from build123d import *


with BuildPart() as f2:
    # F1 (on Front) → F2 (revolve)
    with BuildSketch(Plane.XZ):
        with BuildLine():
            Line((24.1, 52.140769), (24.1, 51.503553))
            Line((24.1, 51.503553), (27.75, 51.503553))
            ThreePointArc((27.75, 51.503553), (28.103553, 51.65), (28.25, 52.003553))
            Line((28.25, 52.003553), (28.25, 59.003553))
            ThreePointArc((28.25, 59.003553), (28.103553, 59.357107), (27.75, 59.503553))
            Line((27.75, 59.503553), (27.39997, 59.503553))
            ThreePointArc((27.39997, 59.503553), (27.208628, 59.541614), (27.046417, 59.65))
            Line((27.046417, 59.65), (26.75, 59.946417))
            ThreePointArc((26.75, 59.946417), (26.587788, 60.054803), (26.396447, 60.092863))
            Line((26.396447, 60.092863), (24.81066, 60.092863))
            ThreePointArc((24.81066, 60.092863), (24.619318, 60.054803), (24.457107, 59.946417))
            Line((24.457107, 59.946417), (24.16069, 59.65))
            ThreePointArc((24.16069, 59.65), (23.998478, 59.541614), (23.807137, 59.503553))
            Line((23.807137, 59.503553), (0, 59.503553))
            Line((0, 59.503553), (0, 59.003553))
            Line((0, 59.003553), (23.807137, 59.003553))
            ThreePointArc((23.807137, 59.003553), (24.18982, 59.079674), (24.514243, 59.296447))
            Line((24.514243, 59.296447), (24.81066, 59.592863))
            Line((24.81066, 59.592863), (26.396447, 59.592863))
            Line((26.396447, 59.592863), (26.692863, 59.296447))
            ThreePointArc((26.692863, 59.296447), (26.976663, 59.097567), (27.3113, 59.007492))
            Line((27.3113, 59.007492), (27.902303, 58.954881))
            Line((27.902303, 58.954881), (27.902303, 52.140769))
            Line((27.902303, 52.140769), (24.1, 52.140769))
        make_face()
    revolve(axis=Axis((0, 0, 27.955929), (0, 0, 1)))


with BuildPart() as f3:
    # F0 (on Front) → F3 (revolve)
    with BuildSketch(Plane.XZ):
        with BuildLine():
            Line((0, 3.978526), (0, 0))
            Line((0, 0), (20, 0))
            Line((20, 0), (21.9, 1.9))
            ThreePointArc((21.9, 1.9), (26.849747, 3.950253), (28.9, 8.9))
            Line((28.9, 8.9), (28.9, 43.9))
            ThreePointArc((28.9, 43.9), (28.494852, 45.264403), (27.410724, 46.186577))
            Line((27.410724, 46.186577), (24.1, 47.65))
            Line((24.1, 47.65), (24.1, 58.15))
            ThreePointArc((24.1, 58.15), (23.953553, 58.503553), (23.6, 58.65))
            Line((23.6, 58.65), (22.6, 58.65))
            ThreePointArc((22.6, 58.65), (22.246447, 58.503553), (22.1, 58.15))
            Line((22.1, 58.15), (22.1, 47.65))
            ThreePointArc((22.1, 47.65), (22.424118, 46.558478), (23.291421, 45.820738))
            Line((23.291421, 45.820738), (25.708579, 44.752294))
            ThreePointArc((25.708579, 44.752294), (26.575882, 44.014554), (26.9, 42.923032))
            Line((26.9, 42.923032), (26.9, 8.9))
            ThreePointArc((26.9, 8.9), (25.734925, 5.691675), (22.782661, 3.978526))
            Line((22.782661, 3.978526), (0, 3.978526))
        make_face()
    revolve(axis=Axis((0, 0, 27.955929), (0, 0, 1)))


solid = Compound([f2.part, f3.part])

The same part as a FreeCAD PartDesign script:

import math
import FreeCAD as App
import Part
import Sketcher
from FreeCAD import Vector
Q = App.Units.Quantity

doc = App.newDocument("Part")
params = doc.addObject("Spreadsheet::Sheet", "Params")
for row, (alias, value) in enumerate([
    ("sketch1_radius", "1.000001 mm"),
    ("sketch1_height", "7 mm"),
    ("sketch1_width", "3.65 mm"),
    ("revolution_angle", "360 deg"),
    ("sketch2_radius", "7.000002 mm"),
    ("sketch2_radius2", "1.999999 mm"),
    ("sketch2_radius3", "5 mm"),
    ("sketch2_radius4", "0.500001 mm"),
    ("sketch2_width", "20 mm"),
    ("revolution2_angle", "360 deg"),
], start=1):
    params.set(f"A{row}", alias)
    params.set(f"B{row}", "=" + value)
    params.setAlias(f"B{row}", alias)

body = doc.addObject("PartDesign::Body", "Body")

# Sketch on XZ plane
sketch1 = body.newObject("Sketcher::SketchObject", "Sketch")
sketch1.AttachmentSupport = (doc.getObject("XZ_Plane"), [""])
sketch1.MapMode = "FlatFace"
sketch1.addGeometry([
    Part.LineSegment(Vector(24.1, 52.14, 0), Vector(24.1, 51.5, 0)),  # 0
    Part.LineSegment(Vector(24.1, 51.5, 0), Vector(27.75, 51.5, 0)),  # 1
    Part.ArcOfCircle(Part.Circle(Vector(27.75, 52, 0), Vector(0, 0, 1), 0.5), math.radians(-90), math.radians(0)),  # 2
    Part.LineSegment(Vector(28.25, 52, 0), Vector(28.25, 59, 0)),  # 3
    Part.ArcOfCircle(Part.Circle(Vector(27.75, 59, 0), Vector(0, 0, 1), 0.5), math.radians(0), math.radians(90)),  # 4
    Part.LineSegment(Vector(27.75, 59.5, 0), Vector(27.4, 59.5, 0)),  # 5
    Part.ArcOfCircle(Part.Circle(Vector(27.4, 60, 0), Vector(0, 0, 1), 0.5), math.radians(-135), math.radians(-90)),  # 6
    Part.LineSegment(Vector(27.05, 59.65, 0), Vector(26.75, 59.95, 0)),  # 7
    Part.ArcOfCircle(Part.Circle(Vector(26.4, 59.59, 0), Vector(0, 0, 1), 0.5), math.radians(45), math.radians(90)),  # 8
    Part.LineSegment(Vector(26.4, 60.09, 0), Vector(24.81, 60.09, 0)),  # 9
    Part.ArcOfCircle(Part.Circle(Vector(24.81, 59.59, 0), Vector(0, 0, 1), 0.5), math.radians(90), math.radians(135)),  # 10
    Part.LineSegment(Vector(24.46, 59.95, 0), Vector(24.16, 59.65, 0)),  # 11
    Part.ArcOfCircle(Part.Circle(Vector(23.81, 60, 0), Vector(0, 0, 1), 0.5), math.radians(-90), math.radians(-45)),  # 12
    Part.LineSegment(Vector(23.81, 59.5, 0), Vector(0, 59.5, 0)),  # 13
    Part.LineSegment(Vector(0, 59.5, 0), Vector(0, 59, 0)),  # 14
    Part.LineSegment(Vector(0, 59, 0), Vector(23.81, 59, 0)),  # 15
    Part.ArcOfCircle(Part.Circle(Vector(23.81, 60, 0), Vector(0, 0, 1), 1), math.radians(-90), math.radians(-45)),  # 16
    Part.LineSegment(Vector(24.51, 59.3, 0), Vector(24.81, 59.59, 0)),  # 17
    Part.LineSegment(Vector(24.81, 59.59, 0), Vector(26.4, 59.59, 0)),  # 18
    Part.LineSegment(Vector(26.4, 59.59, 0), Vector(26.69, 59.3, 0)),  # 19
    Part.ArcOfCircle(Part.Circle(Vector(27.4, 60, 0), Vector(0, 0, 1), 1), math.radians(-135), math.radians(-95)),  # 20
    Part.LineSegment(Vector(27.31, 59.01, 0), Vector(27.9, 58.95, 0)),  # 21
    Part.LineSegment(Vector(27.9, 58.95, 0), Vector(27.9, 52.14, 0)),  # 22
    Part.LineSegment(Vector(27.9, 52.14, 0), Vector(24.1, 52.14, 0)),  # 23
], False)
sketch1.addConstraint([
    Sketcher.Constraint("Coincident", 0, 2, 1, 1),
    Sketcher.Constraint("Coincident", 1, 2, 2, 1),
    Sketcher.Constraint("Coincident", 2, 2, 3, 1),
    Sketcher.Constraint("Tangent", 3, 2, 4, 1),
    Sketcher.Constraint("Tangent", 4, 2, 5, 1),
    Sketcher.Constraint("Coincident", 5, 2, 6, 2),
    Sketcher.Constraint("Tangent", 6, 1, 7, 1),
    Sketcher.Constraint("Coincident", 7, 2, 8, 1),
    Sketcher.Constraint("Tangent", 8, 2, 9, 1),
    Sketcher.Constraint("Coincident", 9, 2, 10, 1),
    Sketcher.Constraint("Tangent", 10, 2, 11, 1),
    Sketcher.Constraint("Coincident", 11, 2, 12, 2),
    Sketcher.Constraint("Coincident", 12, 1, 13, 1),
    Sketcher.Constraint("Coincident", 13, 2, 14, 1),
    Sketcher.Constraint("Coincident", 14, 2, 15, 1),
    Sketcher.Constraint("Tangent", 15, 2, 16, 1),
    Sketcher.Constraint("Coincident", 16, 2, 17, 1),
    Sketcher.Constraint("Coincident", 17, 2, 18, 1),
    Sketcher.Constraint("Coincident", 18, 2, 19, 1),
    Sketcher.Constraint("Tangent", 19, 2, 20, 1),
    Sketcher.Constraint("Tangent", 20, 2, 21, 1),
    Sketcher.Constraint("Coincident", 21, 2, 22, 1),
    Sketcher.Constraint("Coincident", 22, 2, 23, 1),
    Sketcher.Constraint("Coincident", 23, 2, 0, 1),
    Sketcher.Constraint("Vertical", 0),
    Sketcher.Constraint("Horizontal", 1),
    Sketcher.Constraint("Vertical", 3),
    Sketcher.Constraint("Horizontal", 5),
    Sketcher.Constraint("Horizontal", 9),
    Sketcher.Constraint("Horizontal", 13),
    Sketcher.Constraint("Vertical", 14),
    Sketcher.Constraint("Horizontal", 15),
    Sketcher.Constraint("Horizontal", 18),
    Sketcher.Constraint("Vertical", 22),
    Sketcher.Constraint("Horizontal", 23),
    Sketcher.Constraint("Coincident", 16, 3, 12, 3),
    Sketcher.Constraint("Coincident", 20, 3, 6, 3),
    Sketcher.Constraint("Coincident", 17, 2, 10, 3),
    Sketcher.Constraint("Coincident", 18, 2, 8, 3),
    Sketcher.Constraint("Equal", 2, 4),
    Sketcher.Constraint("Equal", 6, 8),
    Sketcher.Constraint("Equal", 16, 20),
    Sketcher.Constraint("PointOnObject", 13, 2, -2),
    Sketcher.Constraint("Perpendicular", 7, 11),
    Sketcher.Constraint("Parallel", 11, 17),
    Sketcher.Constraint("Perpendicular", 17, 19),
    Sketcher.Constraint("Horizontal", 16, 3, 20, 3),
    Sketcher.Constraint("Horizontal", 7, 2, 10, 2),
    Sketcher.Constraint("Horizontal", 6, 1, 11, 2),
    Sketcher.Constraint("Horizontal", 3, 2, 14, 2),
    Sketcher.Constraint("Horizontal", 16, 2, 19, 2),
    Sketcher.Constraint("Vertical", 4, 3, 1, 2),
    Sketcher.Constraint("Vertical", 20, 3, 5, 2),
    Sketcher.Constraint("Vertical", 10, 3, 9, 2),
    Sketcher.Constraint("Vertical", 16, 3, 12, 1),
    Sketcher.Constraint("Equal", 7, 11),
    Sketcher.Constraint("Radius", 16, Q("1.000001 mm")),
    Sketcher.Constraint("DistanceY", 3, 1, 3, 2, Q("7 mm")),
    Sketcher.Constraint("DistanceY", 2, 3, 4, 3, Q("6.999999 mm")),
    Sketcher.Constraint("DistanceX", 1, 1, 1, 2, Q("3.65 mm")),
    Sketcher.Constraint("DistanceX", -1, 1, 0, 2, Q("24.1 mm")),
    Sketcher.Constraint("DistanceY", -1, 1, 6, 1, Q("59.65 mm")),
    Sketcher.Constraint("DistanceX", -1, 1, 7, 2, Q("26.75 mm")),
    Sketcher.Constraint("DistanceX", 5, 2, 5, 1, Q("0.35003 mm")),
    Sketcher.Constraint("DistanceX", -1, 1, 20, 2, Q("27.3113 mm")),
    Sketcher.Constraint("Distance", 21, Q("0.59334 mm")),
    Sketcher.Constraint("DistanceX", 9, 2, 9, 1, Q("1.585787 mm")),
    Sketcher.Constraint("DistanceY", 0, 2, 0, 1, Q("0.637216 mm")),
])
sketch1.setExpression("Constraints[56]", "Params.sketch1_radius")
sketch1.setExpression("Constraints[57]", "Params.sketch1_height")
sketch1.setExpression("Constraints[59]", "Params.sketch1_width")
revolution = body.newObject("PartDesign::Revolution", "Revolution")
revolution.Profile = sketch1
revolution.ReferenceAxis = (sketch1, ["V_Axis"])
revolution.setExpression("Angle", "Params.revolution_angle")
body2 = doc.addObject("PartDesign::Body", "Body001")

# Sketch on XZ plane
sketch2 = body2.newObject("Sketcher::SketchObject", "Sketch001")
sketch2.AttachmentSupport = (doc.getObject("XZ_Plane001"), [""])
sketch2.MapMode = "FlatFace"
sketch2.addGeometry([
    Part.LineSegment(Vector(0, 4, 0), Vector(0, 0, 0)),  # 0
    Part.LineSegment(Vector(0, 0, 0), Vector(20, 0, 0)),  # 1
    Part.LineSegment(Vector(20, 0, 0), Vector(21.9, 1.9, 0)),  # 2
    Part.ArcOfCircle(Part.Circle(Vector(21.9, 8.9, 0), Vector(0, 0, 1), 7), math.radians(-90), math.radians(0)),  # 3
    Part.LineSegment(Vector(28.9, 8.9, 0), Vector(28.9, 43.9, 0)),  # 4
    Part.ArcOfCircle(Part.Circle(Vector(26.4, 43.9, 0), Vector(0, 0, 1), 2.5), math.radians(0), math.radians(66)),  # 5
    Part.LineSegment(Vector(27.4, 46.2, 0), Vector(24.1, 47.6, 0)),  # 6
    Part.LineSegment(Vector(24.1, 47.6, 0), Vector(24.1, 58.1, 0)),  # 7
    Part.ArcOfCircle(Part.Circle(Vector(23.6, 58.1, 0), Vector(0, 0, 1), 0.5), math.radians(0), math.radians(90)),  # 8
    Part.LineSegment(Vector(23.6, 58.6, 0), Vector(22.6, 58.6, 0)),  # 9
    Part.ArcOfCircle(Part.Circle(Vector(22.6, 58.1, 0), Vector(0, 0, 1), 0.5), math.radians(90), math.radians(180)),  # 10
    Part.LineSegment(Vector(22.1, 58.1, 0), Vector(22.1, 47.6, 0)),  # 11
    Part.ArcOfCircle(Part.Circle(Vector(24.1, 47.6, 0), Vector(0, 0, 1), 2), math.radians(180), math.radians(246)),  # 12
    Part.LineSegment(Vector(23.3, 45.8, 0), Vector(25.7, 44.8, 0)),  # 13
    Part.ArcOfCircle(Part.Circle(Vector(24.9, 42.9, 0), Vector(0, 0, 1), 2), math.radians(0), math.radians(66)),  # 14
    Part.LineSegment(Vector(26.9, 42.9, 0), Vector(26.9, 8.9, 0)),  # 15
    Part.ArcOfCircle(Part.Circle(Vector(21.9, 8.9, 0), Vector(0, 0, 1), 5), math.radians(-80), math.radians(0)),  # 16
    Part.LineSegment(Vector(22.8, 4, 0), Vector(0, 4, 0)),  # 17
], False)
sketch2.addConstraint([
    Sketcher.Constraint("Coincident", 0, 2, 1, 1),
    Sketcher.Constraint("Coincident", 1, 2, 2, 1),
    Sketcher.Constraint("Coincident", 2, 2, 3, 1),
    Sketcher.Constraint("Tangent", 3, 2, 4, 1),
    Sketcher.Constraint("Tangent", 4, 2, 5, 1),
    Sketcher.Constraint("Tangent", 5, 2, 6, 1),
    Sketcher.Constraint("Coincident", 6, 2, 7, 1),
    Sketcher.Constraint("Coincident", 7, 2, 8, 1),
    Sketcher.Constraint("Coincident", 8, 2, 9, 1),
    Sketcher.Constraint("Coincident", 9, 2, 10, 1),
    Sketcher.Constraint("Coincident", 10, 2, 11, 1),
    Sketcher.Constraint("Tangent", 11, 2, 12, 1),
    Sketcher.Constraint("Tangent", 12, 2, 13, 1),
    Sketcher.Constraint("Tangent", 13, 2, 14, 2),
    Sketcher.Constraint("Tangent", 14, 1, 15, 1),
    Sketcher.Constraint("Tangent", 15, 2, 16, 2),
    Sketcher.Constraint("Coincident", 16, 1, 17, 1),
    Sketcher.Constraint("Coincident", 17, 2, 0, 1),
    Sketcher.Constraint("Vertical", 0),
    Sketcher.Constraint("Horizontal", 1),
    Sketcher.Constraint("Vertical", 4),
    Sketcher.Constraint("Vertical", 7),
    Sketcher.Constraint("Horizontal", 9),
    Sketcher.Constraint("Vertical", 11),
    Sketcher.Constraint("Vertical", 15),
    Sketcher.Constraint("Horizontal", 17),
    Sketcher.Constraint("Coincident", 0, 2, -1, 1),
    Sketcher.Constraint("Coincident", 16, 3, 3, 3),
    Sketcher.Constraint("Coincident", 6, 2, 12, 3),
    Sketcher.Constraint("Equal", 8, 10),
    Sketcher.Constraint("Equal", 12, 14),
    Sketcher.Constraint("Parallel", 6, 13),
    Sketcher.Constraint("Horizontal", 10, 3, 7, 2),
    Sketcher.Constraint("Horizontal", 7, 2, 10, 2),
    Sketcher.Constraint("Vertical", 16, 3, 2, 2),
    Sketcher.Constraint("Vertical", 10, 3, 9, 2),
    Sketcher.Constraint("Radius", 3, Q("7.000002 mm")),
    Sketcher.Constraint("Radius", 12, Q("1.999999 mm")),
    Sketcher.Constraint("Radius", 16, Q("5 mm")),
    Sketcher.Constraint("Radius", 8, Q("0.500001 mm")),
    Sketcher.Constraint("DistanceX", 1, 1, 1, 2, Q("20 mm")),
    Sketcher.Constraint("DistanceX", 9, 2, 9, 1, Q("1 mm")),
    Sketcher.Constraint("DistanceY", 4, 1, 4, 2, Q("35 mm")),
    Sketcher.Constraint("Angle", 2, Q("45 deg")),
    Sketcher.Constraint("DistanceY", 7, 1, 7, 2, Q("10.5 mm")),
    Sketcher.Constraint("DistanceX", -1, 1, 3, 3, Q("21.899998 mm")),
    Sketcher.Constraint("DistanceX", -1, 1, 8, 3, Q("23.599999 mm")),
    Sketcher.Constraint("DistanceX", 10, 3, 5, 3, Q("3.800001 mm")),
    Sketcher.Constraint("DistanceY", -1, 1, 8, 3, Q("58.149999 mm")),
    Sketcher.Constraint("DistanceX", 17, 2, 17, 1, Q("22.782661 mm")),
])
sketch2.setExpression("Constraints[36]", "Params.sketch2_radius")
sketch2.setExpression("Constraints[37]", "Params.sketch2_radius2")
sketch2.setExpression("Constraints[38]", "Params.sketch2_radius3")
sketch2.setExpression("Constraints[39]", "Params.sketch2_radius4")
sketch2.setExpression("Constraints[40]", "Params.sketch2_width")
revolution2 = body2.newObject("PartDesign::Revolution", "Revolution001")
revolution2.Profile = sketch2
revolution2.ReferenceAxis = (sketch2, ["V_Axis"])
revolution2.setExpression("Angle", "Params.revolution2_angle")

doc.recompute()
